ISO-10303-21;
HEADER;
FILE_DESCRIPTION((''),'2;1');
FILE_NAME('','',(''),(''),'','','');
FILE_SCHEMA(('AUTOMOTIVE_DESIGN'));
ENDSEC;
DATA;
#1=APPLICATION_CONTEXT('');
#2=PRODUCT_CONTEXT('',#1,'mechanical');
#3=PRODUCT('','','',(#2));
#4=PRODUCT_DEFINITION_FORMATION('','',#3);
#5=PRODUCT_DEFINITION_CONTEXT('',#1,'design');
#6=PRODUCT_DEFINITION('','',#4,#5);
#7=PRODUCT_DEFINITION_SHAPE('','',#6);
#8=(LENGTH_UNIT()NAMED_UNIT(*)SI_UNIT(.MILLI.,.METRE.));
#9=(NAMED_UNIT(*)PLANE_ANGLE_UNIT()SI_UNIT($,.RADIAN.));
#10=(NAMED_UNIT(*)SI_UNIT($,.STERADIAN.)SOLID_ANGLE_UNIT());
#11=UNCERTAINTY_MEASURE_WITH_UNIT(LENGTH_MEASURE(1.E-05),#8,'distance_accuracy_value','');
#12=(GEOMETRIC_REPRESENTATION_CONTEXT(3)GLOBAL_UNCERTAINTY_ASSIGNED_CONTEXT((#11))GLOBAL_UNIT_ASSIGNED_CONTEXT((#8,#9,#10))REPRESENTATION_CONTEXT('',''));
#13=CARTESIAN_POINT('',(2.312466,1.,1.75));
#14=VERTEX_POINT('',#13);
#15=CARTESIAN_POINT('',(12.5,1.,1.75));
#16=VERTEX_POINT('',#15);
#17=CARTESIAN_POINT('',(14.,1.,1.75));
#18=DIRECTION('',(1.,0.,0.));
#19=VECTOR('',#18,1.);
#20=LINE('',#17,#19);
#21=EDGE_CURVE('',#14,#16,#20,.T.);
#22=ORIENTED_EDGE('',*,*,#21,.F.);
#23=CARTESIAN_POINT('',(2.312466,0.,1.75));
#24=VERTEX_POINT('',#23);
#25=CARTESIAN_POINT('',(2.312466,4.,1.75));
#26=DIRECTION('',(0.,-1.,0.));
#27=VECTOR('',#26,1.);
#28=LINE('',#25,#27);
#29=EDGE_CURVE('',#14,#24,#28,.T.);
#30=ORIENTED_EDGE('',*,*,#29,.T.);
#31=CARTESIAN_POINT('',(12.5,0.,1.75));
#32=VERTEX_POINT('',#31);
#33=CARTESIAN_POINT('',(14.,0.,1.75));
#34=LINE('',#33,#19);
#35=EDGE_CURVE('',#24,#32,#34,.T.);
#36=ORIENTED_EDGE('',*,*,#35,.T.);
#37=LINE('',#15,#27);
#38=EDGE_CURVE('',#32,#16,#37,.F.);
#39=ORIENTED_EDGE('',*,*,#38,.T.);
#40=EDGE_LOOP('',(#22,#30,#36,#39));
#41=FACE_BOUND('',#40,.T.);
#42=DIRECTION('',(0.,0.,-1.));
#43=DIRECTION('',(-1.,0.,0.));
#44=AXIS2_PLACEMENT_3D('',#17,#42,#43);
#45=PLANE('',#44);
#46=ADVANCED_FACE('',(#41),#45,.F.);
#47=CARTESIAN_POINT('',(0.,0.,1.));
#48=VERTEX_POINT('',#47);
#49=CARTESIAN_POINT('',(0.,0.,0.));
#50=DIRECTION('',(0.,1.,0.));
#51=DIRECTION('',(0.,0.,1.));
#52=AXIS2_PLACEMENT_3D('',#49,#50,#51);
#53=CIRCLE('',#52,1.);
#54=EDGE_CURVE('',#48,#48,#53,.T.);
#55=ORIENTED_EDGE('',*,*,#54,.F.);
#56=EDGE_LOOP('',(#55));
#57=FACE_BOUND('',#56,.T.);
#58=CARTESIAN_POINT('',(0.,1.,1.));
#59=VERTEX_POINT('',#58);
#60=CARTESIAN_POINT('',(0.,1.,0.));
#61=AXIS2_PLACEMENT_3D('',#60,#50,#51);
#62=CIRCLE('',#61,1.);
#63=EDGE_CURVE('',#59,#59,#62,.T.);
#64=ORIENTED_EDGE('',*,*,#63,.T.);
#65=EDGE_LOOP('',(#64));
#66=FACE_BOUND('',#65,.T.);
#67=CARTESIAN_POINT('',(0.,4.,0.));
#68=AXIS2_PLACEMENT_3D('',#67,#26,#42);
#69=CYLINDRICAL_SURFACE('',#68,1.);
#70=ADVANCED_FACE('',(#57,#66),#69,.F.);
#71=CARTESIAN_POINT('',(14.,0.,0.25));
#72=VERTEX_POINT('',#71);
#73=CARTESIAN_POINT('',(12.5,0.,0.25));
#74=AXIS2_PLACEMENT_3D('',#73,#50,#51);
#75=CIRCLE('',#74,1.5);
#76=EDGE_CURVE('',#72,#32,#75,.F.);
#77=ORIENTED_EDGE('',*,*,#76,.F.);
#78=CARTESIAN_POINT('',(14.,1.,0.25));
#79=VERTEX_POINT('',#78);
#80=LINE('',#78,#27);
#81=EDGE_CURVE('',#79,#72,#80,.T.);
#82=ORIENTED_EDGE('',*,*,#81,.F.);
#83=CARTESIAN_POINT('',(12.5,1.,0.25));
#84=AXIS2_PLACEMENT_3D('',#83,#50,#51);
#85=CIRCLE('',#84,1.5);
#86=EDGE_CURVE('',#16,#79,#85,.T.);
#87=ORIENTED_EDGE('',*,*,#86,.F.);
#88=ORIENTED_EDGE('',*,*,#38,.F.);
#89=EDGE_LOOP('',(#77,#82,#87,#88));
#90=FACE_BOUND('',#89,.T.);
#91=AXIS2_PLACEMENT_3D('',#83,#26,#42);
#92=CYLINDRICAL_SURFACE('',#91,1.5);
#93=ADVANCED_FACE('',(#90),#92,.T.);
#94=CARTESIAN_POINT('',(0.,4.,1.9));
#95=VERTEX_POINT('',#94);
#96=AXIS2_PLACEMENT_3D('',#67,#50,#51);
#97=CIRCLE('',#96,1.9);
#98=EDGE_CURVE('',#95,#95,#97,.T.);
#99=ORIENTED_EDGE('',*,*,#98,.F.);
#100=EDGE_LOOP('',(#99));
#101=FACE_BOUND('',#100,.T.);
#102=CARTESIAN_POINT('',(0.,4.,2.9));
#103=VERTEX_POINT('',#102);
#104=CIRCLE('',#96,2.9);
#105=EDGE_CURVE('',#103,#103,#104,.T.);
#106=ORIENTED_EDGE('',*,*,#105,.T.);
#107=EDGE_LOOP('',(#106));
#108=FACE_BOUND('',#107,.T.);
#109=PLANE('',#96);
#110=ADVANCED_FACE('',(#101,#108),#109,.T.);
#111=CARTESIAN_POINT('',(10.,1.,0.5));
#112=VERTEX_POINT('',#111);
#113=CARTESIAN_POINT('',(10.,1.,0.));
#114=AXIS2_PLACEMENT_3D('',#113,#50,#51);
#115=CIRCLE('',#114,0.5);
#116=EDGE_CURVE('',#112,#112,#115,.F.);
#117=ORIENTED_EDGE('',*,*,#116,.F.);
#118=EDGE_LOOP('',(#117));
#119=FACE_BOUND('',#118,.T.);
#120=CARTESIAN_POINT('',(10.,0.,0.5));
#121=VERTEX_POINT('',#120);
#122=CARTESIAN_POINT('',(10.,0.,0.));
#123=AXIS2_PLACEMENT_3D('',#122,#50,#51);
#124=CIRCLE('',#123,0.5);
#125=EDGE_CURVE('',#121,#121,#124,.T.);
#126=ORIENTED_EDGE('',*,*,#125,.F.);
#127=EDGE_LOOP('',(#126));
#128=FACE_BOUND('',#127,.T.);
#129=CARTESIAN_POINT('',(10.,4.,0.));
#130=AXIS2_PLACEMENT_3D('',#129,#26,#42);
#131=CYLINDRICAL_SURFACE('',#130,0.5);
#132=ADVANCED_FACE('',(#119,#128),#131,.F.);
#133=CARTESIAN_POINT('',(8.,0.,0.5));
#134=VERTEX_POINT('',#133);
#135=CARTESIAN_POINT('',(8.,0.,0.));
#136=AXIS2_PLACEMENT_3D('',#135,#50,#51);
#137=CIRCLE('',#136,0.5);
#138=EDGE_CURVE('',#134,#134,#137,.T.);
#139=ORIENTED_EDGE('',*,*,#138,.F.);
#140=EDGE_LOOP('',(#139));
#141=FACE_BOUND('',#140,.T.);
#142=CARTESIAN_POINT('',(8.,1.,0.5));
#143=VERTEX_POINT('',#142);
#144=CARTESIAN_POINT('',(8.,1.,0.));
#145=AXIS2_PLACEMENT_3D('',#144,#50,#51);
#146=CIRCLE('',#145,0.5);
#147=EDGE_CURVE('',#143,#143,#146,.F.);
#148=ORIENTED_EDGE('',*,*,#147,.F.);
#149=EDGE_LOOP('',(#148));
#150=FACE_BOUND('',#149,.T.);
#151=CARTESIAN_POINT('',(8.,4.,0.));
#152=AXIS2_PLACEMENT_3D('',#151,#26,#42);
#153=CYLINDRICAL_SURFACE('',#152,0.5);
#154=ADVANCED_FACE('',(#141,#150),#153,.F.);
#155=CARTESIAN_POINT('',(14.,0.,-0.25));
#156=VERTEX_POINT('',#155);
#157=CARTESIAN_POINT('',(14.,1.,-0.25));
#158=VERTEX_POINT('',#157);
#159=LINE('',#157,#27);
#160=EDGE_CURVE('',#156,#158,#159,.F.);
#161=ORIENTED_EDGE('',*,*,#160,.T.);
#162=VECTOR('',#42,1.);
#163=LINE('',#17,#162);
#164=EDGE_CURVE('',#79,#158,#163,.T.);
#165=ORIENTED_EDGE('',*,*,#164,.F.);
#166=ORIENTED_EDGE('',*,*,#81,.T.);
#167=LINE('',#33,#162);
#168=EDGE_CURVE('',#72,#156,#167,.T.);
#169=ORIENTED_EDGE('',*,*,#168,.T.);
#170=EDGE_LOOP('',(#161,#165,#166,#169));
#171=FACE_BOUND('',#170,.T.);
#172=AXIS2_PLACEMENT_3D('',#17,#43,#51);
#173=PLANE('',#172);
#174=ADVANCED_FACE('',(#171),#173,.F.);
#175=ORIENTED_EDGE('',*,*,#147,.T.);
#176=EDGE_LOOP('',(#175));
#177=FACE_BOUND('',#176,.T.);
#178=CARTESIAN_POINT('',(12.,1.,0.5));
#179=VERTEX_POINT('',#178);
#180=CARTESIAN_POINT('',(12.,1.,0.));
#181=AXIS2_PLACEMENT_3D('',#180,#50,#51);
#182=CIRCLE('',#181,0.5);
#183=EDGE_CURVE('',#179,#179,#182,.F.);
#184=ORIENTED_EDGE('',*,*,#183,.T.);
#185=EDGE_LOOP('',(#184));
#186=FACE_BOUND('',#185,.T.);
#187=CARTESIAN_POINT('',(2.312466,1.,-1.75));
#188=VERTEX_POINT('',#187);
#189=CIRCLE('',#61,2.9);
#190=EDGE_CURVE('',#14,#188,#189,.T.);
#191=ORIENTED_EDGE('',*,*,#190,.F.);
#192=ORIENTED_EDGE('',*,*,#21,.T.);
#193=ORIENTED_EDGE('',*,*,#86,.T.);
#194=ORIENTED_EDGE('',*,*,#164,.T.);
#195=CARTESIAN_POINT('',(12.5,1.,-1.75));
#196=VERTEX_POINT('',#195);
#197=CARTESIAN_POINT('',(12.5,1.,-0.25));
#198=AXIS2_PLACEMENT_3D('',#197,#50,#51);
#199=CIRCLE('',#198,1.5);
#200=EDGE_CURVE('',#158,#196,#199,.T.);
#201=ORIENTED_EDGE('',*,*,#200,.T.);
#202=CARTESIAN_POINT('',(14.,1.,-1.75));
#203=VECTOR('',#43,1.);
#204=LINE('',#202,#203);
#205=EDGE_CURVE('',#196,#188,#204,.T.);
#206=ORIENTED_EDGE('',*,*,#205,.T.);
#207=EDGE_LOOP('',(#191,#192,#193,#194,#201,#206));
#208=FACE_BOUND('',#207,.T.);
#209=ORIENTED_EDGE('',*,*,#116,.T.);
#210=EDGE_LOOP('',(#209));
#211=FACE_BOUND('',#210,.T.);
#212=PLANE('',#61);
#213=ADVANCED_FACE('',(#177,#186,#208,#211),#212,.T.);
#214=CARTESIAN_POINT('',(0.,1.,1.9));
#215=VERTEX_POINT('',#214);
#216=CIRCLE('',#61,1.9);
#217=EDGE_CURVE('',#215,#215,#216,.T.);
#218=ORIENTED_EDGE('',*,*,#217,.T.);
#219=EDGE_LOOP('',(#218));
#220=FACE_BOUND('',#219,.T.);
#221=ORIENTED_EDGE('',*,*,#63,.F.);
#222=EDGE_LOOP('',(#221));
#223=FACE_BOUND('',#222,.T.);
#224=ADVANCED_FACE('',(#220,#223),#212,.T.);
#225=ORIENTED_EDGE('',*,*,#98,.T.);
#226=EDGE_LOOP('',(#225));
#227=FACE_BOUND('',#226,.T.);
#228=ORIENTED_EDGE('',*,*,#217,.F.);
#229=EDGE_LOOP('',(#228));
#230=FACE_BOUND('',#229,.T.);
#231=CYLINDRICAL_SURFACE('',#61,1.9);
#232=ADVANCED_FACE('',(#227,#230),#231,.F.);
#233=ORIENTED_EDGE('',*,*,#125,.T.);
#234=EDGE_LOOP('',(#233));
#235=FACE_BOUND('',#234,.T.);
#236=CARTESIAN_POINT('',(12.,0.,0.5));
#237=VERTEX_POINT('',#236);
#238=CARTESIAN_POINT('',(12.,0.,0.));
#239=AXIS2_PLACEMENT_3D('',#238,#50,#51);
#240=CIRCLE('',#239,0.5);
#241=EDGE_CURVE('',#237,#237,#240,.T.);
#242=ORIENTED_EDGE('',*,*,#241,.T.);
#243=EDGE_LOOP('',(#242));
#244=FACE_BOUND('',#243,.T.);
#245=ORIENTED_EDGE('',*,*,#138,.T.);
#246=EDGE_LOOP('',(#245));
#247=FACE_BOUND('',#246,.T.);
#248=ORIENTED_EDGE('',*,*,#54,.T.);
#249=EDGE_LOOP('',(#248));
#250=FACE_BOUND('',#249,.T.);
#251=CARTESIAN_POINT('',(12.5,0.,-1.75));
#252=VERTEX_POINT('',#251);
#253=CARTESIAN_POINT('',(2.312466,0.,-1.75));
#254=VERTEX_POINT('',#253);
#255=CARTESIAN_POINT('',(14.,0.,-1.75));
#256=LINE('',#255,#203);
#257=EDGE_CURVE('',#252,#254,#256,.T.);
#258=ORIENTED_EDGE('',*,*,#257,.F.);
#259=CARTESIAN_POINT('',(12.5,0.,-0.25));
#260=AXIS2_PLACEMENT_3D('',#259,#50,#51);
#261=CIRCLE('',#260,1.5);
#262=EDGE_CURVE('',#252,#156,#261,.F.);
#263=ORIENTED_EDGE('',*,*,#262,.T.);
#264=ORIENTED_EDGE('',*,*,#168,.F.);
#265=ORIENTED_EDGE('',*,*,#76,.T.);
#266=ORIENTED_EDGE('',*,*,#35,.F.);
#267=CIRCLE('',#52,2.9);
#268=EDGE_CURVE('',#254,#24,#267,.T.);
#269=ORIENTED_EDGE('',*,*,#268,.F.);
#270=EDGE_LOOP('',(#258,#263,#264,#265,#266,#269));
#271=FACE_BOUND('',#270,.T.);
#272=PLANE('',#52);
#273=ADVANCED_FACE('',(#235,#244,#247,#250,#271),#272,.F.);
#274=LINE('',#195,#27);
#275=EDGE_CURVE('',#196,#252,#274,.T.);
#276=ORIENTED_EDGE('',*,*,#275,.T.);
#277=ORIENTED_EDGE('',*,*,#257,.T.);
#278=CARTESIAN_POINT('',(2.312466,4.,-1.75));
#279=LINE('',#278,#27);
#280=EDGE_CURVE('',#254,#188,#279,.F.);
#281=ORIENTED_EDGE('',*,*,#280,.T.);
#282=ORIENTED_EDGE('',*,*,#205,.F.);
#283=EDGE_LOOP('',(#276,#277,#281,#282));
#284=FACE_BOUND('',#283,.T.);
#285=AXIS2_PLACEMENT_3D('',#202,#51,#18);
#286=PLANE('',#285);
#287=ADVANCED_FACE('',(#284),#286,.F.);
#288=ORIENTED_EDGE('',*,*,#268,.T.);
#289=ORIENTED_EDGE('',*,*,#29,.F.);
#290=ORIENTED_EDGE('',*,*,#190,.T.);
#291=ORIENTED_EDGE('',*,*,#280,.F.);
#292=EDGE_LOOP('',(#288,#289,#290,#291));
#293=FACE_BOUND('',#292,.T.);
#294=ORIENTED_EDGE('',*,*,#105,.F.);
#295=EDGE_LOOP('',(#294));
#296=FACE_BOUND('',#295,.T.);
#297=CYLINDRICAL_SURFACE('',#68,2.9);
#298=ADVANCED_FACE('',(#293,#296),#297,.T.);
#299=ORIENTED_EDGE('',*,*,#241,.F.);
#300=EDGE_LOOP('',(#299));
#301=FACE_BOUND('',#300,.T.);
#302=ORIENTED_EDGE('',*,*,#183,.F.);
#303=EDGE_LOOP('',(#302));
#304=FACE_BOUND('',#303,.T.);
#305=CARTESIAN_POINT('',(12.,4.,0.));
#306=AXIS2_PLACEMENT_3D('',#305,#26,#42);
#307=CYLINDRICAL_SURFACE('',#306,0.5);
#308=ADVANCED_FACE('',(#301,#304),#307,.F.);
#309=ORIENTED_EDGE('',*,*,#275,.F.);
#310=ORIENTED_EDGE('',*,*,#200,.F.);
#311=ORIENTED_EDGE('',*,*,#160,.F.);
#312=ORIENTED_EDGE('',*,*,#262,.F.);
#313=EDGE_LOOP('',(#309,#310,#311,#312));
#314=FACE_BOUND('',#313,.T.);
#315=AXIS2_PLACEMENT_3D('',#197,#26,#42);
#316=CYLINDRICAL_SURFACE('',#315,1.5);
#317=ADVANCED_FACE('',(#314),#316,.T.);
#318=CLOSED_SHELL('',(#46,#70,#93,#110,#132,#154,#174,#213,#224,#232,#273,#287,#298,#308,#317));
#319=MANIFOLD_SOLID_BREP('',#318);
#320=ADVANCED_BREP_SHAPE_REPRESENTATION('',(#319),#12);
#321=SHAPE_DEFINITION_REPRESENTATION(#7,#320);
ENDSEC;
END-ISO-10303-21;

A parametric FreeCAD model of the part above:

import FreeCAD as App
import Part
import Sketcher


def edges_at(feature, points):
    """Names of the edges that pass closest to the given points."""
    edges = feature.Shape.Edges
    near = lambda p: min(range(len(edges)), key=lambda i: edges[i].distToShape(Part.Vertex(*p))[0])
    return sorted({f"Edge{near(p) + 1}" for p in points})


def add_polygon(sketch, points):
    """Adds a closed chain of lines whose ends are joined by coincident constraints."""
    first, n = sketch.GeometryCount, len(points)
    for a, b in zip(points, points[1:] + points[:1]):
        sketch.addGeometry(Part.LineSegment(App.Vector(*a, 0), App.Vector(*b, 0)), False)
    for i in range(n):
        sketch.addConstraint(Sketcher.Constraint("Coincident", first + i, 2, first + (i + 1) % n, 1))

doc = App.newDocument("Part")
body = doc.addObject("PartDesign::Body", "Body")

sketch1 = body.newObject("Sketcher::SketchObject", "Sketch")
sketch1.AttachmentSupport = (doc.getObject("XZ_Plane"), [""])
sketch1.MapMode = "FlatFace"
sketch1.addGeometry(Part.Circle(App.Vector(0, 0, 0), App.Vector(0, 0, 1), 2.9), False)
sketch1.addConstraint([
    Sketcher.Constraint("Coincident", 0, 3, -1, 1),
    Sketcher.Constraint("Diameter", 0, 5.8),
])
pad1 = body.newObject("PartDesign::Pad", "Pad")
pad1.Profile = sketch1
pad1.Length = 4
pad1.Reversed = True

sketch2 = body.newObject("Sketcher::SketchObject", "Sketch001")
sketch2.AttachmentSupport = (doc.getObject("XZ_Plane"), [""])
sketch2.MapMode = "FlatFace"
add_polygon(sketch2, [(1.4, -1.8), (1.4, 1.8), (14, 1.8), (14, -1.8)])
sketch2.addConstraint([
    Sketcher.Constraint("Vertical", 0),
    Sketcher.Constraint("Horizontal", 1),
    Sketcher.Constraint("Vertical", 2),
    Sketcher.Constraint("Horizontal", 3),
    Sketcher.Constraint("DistanceY", 0, 1, 0, 2, 3.5),
    Sketcher.Constraint("DistanceX", -1, 1, 1, 2, 14.0),
    Sketcher.Constraint("DistanceY", -1, 1, 0, 2, 1.75),
    Sketcher.Constraint("DistanceX", 1, 1, 1, 2, 12.628096),
])
pad2 = body.newObject("PartDesign::Pad", "Pad001")
pad2.Profile = sketch2
pad2.Length = 1
pad2.Reversed = True

sketch3 = body.newObject("Sketcher::SketchObject", "Sketch002")
sketch3.AttachmentSupport = (doc.getObject("XZ_Plane"), [""])
sketch3.MapMode = "FlatFace"
sketch3.addGeometry([
    Part.Circle(App.Vector(8, 0, 0), App.Vector(0, 0, 1), 0.5),
    Part.Circle(App.Vector(12, 0, 0), App.Vector(0, 0, 1), 0.5),
    Part.Circle(App.Vector(10, 0, 0), App.Vector(0, 0, 1), 0.5),
    Part.Circle(App.Vector(0, 0, 0), App.Vector(0, 0, 1), 1),
], False)
sketch3.addConstraint([
    Sketcher.Constraint("Coincident", 3, 3, -1, 1),
    Sketcher.Constraint("Equal", 0, 1),
    Sketcher.Constraint("Equal", 1, 2),
    Sketcher.Constraint("PointOnObject", 0, 3, -1),
    Sketcher.Constraint("PointOnObject", 1, 3, -1),
    Sketcher.Constraint("PointOnObject", 2, 3, -1),
    Sketcher.Constraint("Diameter", 0, 1.0),
    Sketcher.Constraint("Diameter", 3, 2.0),
    Sketcher.Constraint("DistanceX", -1, 1, 0, 3, 8.0),
    Sketcher.Constraint("DistanceX", -1, 1, 1, 3, 12.0),
    Sketcher.Constraint("DistanceX", -1, 1, 2, 3, 10.0),
])
pocket1 = body.newObject("PartDesign::Pocket", "Pocket")
pocket1.Profile = sketch3
pocket1.Type = "ThroughAll"
doc.recompute()

fillet = body.newObject("PartDesign::Fillet", "Fillet")
fillet.Base = (pocket1, edges_at(pocket1, [(14, 0.5, -1.75), (14, 0.5, 1.75)]))
fillet.Radius = 1.5

sketch4 = body.newObject("Sketcher::SketchObject", "Sketch003")
sketch4.AttachmentSupport = (doc.getObject("XZ_Plane"), [""])
sketch4.MapMode = "FlatFace"
sketch4.AttachmentOffset = App.Placement(App.Vector(0, 0, -4), App.Rotation())
sketch4.addGeometry(Part.Circle(App.Vector(0, 0, 0), App.Vector(0, 0, 1), 1.9), False)
sketch4.addConstraint([
    Sketcher.Constraint("Coincident", 0, 3, -1, 1),
    Sketcher.Constraint("Diameter", 0, 3.8),
])
pocket2 = body.newObject("PartDesign::Pocket", "Pocket001")
pocket2.Profile = sketch4
pocket2.Length = 3
pocket2.Reversed = True

doc.recompute()
